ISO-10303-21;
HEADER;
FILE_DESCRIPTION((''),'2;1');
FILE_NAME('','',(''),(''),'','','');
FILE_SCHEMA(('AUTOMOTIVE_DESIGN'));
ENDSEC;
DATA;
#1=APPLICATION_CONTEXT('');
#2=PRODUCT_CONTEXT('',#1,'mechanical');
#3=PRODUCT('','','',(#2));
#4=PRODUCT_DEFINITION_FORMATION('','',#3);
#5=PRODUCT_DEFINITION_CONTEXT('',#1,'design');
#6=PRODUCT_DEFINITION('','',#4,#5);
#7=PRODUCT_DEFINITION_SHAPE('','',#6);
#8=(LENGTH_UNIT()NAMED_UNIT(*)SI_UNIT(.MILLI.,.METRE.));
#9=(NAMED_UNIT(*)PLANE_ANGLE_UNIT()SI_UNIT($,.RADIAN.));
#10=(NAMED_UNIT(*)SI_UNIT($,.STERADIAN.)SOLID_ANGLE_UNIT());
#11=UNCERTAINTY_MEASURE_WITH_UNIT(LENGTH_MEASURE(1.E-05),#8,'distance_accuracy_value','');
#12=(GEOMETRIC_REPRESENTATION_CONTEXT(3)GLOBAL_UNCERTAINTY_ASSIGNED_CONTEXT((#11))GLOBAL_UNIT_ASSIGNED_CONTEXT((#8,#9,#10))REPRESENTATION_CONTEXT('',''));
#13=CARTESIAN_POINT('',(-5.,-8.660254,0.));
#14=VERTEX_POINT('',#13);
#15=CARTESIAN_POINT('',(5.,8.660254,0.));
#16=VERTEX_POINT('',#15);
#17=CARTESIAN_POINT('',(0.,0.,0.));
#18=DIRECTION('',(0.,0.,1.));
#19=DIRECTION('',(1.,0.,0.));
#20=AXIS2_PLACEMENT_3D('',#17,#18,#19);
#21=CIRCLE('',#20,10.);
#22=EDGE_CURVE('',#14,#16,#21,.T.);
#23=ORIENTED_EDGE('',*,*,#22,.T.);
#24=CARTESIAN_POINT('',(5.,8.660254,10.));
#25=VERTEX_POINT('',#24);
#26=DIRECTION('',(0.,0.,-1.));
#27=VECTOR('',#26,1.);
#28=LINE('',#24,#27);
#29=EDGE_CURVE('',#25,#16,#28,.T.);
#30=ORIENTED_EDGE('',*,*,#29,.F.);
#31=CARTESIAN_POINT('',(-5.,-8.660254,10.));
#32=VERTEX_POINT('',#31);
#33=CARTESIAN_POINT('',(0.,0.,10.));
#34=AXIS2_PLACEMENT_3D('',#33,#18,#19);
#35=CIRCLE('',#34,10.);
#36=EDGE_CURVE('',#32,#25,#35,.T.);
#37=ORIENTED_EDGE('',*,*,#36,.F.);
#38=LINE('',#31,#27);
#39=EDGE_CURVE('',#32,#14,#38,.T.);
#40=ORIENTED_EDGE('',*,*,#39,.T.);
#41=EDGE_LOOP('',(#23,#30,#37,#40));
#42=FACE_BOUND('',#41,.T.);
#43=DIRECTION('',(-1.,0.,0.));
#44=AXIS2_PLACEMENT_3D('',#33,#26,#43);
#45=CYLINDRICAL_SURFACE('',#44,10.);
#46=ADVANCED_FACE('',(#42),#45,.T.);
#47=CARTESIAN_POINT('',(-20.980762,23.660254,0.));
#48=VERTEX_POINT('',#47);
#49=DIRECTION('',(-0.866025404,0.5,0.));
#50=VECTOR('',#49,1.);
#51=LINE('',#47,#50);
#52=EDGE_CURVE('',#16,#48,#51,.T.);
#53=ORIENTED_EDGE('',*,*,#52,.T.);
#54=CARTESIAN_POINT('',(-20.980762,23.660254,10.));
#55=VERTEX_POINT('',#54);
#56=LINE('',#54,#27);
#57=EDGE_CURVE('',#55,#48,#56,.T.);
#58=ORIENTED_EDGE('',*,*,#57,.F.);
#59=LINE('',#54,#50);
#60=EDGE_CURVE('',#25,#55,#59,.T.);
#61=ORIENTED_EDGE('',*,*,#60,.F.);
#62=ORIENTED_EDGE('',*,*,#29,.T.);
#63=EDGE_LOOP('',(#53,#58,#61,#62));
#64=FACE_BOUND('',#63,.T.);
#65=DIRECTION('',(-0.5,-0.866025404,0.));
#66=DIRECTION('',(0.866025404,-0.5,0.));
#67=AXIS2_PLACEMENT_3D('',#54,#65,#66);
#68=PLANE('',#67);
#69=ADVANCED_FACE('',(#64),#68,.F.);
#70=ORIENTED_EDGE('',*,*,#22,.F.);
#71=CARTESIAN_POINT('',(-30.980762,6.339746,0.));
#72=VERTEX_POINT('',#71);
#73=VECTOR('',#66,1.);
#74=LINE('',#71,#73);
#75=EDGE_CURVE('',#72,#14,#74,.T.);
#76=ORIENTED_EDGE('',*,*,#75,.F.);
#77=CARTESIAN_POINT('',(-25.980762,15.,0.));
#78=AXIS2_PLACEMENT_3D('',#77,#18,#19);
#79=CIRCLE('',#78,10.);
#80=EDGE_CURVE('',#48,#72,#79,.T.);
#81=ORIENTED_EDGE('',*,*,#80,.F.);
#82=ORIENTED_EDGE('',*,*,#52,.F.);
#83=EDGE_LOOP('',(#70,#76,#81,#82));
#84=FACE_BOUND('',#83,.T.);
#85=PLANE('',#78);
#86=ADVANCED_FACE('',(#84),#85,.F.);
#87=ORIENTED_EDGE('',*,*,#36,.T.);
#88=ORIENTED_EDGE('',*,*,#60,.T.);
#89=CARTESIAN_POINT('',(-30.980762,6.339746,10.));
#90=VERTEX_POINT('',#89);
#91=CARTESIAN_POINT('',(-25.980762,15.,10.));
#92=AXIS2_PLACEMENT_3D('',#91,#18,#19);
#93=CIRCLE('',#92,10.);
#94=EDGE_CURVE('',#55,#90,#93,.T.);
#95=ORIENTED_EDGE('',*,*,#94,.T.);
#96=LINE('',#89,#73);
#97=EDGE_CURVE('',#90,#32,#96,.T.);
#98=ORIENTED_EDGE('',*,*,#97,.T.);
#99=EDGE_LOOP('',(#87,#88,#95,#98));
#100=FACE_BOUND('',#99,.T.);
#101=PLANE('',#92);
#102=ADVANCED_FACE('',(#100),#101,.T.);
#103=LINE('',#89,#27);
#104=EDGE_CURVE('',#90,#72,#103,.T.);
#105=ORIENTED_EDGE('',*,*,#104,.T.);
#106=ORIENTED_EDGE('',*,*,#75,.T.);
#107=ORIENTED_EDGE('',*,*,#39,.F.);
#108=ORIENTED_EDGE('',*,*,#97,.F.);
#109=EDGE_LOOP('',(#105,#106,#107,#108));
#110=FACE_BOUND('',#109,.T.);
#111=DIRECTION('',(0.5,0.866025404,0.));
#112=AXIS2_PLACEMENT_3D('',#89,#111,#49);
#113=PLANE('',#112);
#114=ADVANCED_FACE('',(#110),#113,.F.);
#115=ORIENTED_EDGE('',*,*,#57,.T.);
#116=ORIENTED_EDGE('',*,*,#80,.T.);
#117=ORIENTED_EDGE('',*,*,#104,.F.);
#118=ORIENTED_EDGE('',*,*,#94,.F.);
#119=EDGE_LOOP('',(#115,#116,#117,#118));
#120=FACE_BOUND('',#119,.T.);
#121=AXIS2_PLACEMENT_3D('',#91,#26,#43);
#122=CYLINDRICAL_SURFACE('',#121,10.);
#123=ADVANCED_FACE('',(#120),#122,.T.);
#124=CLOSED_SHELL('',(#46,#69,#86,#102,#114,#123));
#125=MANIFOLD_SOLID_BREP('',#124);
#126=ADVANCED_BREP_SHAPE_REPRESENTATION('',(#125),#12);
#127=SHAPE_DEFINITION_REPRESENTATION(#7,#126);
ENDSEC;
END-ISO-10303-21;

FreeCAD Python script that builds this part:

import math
import FreeCAD as App
import Part
import Sketcher
from FreeCAD import Vector
Q = App.Units.Quantity

doc = App.newDocument("Part")
body = doc.addObject("PartDesign::Body", "Body")

sketch1 = body.newObject("Sketcher::SketchObject", "Sketch")
sketch1.AttachmentSupport = (doc.getObject("XY_Plane"), [""])
sketch1.MapMode = "FlatFace"
sketch1.addGeometry(Part.LineSegment(Vector(5, 9, 0), Vector(-21, 24, 0)), False)
sketch1.addGeometry(Part.ArcOfCircle(Part.Circle(Vector(-26, 15, 0), Vector(0, 0, 1), 10), math.radians(60), math.radians(240)), False)
sketch1.addGeometry(Part.LineSegment(Vector(-31, 6, 0), Vector(-5, -9, 0)), False)
sketch1.addGeometry(Part.ArcOfCircle(Part.Circle(Vector(0, 0, 0), Vector(0, 0, 1), 10), math.radians(-120), math.radians(60)), False)
sketch1.addConstraint(Sketcher.Constraint("Tangent", 0, 2, 1, 1))
sketch1.addConstraint(Sketcher.Constraint("Tangent", 1, 2, 2, 1))
sketch1.addConstraint(Sketcher.Constraint("Tangent", 2, 2, 3, 1))
sketch1.addConstraint(Sketcher.Constraint("Tangent", 3, 2, 0, 1))
sketch1.addConstraint(Sketcher.Constraint("Coincident", 3, 3, -1, 1))
sketch1.addConstraint(Sketcher.Constraint("Equal", 1, 3))
sketch1.addConstraint(Sketcher.Constraint("Radius", 1, 10.0))
sketch1.addConstraint(Sketcher.Constraint("Angle", 0, Q("150 deg")))
sketch1.addConstraint(Sketcher.Constraint("Distance", 0, 30.0))
pad1 = body.newObject("PartDesign::Pad", "Pad")
pad1.Profile = sketch1
pad1.Length = 10

doc.recompute()
